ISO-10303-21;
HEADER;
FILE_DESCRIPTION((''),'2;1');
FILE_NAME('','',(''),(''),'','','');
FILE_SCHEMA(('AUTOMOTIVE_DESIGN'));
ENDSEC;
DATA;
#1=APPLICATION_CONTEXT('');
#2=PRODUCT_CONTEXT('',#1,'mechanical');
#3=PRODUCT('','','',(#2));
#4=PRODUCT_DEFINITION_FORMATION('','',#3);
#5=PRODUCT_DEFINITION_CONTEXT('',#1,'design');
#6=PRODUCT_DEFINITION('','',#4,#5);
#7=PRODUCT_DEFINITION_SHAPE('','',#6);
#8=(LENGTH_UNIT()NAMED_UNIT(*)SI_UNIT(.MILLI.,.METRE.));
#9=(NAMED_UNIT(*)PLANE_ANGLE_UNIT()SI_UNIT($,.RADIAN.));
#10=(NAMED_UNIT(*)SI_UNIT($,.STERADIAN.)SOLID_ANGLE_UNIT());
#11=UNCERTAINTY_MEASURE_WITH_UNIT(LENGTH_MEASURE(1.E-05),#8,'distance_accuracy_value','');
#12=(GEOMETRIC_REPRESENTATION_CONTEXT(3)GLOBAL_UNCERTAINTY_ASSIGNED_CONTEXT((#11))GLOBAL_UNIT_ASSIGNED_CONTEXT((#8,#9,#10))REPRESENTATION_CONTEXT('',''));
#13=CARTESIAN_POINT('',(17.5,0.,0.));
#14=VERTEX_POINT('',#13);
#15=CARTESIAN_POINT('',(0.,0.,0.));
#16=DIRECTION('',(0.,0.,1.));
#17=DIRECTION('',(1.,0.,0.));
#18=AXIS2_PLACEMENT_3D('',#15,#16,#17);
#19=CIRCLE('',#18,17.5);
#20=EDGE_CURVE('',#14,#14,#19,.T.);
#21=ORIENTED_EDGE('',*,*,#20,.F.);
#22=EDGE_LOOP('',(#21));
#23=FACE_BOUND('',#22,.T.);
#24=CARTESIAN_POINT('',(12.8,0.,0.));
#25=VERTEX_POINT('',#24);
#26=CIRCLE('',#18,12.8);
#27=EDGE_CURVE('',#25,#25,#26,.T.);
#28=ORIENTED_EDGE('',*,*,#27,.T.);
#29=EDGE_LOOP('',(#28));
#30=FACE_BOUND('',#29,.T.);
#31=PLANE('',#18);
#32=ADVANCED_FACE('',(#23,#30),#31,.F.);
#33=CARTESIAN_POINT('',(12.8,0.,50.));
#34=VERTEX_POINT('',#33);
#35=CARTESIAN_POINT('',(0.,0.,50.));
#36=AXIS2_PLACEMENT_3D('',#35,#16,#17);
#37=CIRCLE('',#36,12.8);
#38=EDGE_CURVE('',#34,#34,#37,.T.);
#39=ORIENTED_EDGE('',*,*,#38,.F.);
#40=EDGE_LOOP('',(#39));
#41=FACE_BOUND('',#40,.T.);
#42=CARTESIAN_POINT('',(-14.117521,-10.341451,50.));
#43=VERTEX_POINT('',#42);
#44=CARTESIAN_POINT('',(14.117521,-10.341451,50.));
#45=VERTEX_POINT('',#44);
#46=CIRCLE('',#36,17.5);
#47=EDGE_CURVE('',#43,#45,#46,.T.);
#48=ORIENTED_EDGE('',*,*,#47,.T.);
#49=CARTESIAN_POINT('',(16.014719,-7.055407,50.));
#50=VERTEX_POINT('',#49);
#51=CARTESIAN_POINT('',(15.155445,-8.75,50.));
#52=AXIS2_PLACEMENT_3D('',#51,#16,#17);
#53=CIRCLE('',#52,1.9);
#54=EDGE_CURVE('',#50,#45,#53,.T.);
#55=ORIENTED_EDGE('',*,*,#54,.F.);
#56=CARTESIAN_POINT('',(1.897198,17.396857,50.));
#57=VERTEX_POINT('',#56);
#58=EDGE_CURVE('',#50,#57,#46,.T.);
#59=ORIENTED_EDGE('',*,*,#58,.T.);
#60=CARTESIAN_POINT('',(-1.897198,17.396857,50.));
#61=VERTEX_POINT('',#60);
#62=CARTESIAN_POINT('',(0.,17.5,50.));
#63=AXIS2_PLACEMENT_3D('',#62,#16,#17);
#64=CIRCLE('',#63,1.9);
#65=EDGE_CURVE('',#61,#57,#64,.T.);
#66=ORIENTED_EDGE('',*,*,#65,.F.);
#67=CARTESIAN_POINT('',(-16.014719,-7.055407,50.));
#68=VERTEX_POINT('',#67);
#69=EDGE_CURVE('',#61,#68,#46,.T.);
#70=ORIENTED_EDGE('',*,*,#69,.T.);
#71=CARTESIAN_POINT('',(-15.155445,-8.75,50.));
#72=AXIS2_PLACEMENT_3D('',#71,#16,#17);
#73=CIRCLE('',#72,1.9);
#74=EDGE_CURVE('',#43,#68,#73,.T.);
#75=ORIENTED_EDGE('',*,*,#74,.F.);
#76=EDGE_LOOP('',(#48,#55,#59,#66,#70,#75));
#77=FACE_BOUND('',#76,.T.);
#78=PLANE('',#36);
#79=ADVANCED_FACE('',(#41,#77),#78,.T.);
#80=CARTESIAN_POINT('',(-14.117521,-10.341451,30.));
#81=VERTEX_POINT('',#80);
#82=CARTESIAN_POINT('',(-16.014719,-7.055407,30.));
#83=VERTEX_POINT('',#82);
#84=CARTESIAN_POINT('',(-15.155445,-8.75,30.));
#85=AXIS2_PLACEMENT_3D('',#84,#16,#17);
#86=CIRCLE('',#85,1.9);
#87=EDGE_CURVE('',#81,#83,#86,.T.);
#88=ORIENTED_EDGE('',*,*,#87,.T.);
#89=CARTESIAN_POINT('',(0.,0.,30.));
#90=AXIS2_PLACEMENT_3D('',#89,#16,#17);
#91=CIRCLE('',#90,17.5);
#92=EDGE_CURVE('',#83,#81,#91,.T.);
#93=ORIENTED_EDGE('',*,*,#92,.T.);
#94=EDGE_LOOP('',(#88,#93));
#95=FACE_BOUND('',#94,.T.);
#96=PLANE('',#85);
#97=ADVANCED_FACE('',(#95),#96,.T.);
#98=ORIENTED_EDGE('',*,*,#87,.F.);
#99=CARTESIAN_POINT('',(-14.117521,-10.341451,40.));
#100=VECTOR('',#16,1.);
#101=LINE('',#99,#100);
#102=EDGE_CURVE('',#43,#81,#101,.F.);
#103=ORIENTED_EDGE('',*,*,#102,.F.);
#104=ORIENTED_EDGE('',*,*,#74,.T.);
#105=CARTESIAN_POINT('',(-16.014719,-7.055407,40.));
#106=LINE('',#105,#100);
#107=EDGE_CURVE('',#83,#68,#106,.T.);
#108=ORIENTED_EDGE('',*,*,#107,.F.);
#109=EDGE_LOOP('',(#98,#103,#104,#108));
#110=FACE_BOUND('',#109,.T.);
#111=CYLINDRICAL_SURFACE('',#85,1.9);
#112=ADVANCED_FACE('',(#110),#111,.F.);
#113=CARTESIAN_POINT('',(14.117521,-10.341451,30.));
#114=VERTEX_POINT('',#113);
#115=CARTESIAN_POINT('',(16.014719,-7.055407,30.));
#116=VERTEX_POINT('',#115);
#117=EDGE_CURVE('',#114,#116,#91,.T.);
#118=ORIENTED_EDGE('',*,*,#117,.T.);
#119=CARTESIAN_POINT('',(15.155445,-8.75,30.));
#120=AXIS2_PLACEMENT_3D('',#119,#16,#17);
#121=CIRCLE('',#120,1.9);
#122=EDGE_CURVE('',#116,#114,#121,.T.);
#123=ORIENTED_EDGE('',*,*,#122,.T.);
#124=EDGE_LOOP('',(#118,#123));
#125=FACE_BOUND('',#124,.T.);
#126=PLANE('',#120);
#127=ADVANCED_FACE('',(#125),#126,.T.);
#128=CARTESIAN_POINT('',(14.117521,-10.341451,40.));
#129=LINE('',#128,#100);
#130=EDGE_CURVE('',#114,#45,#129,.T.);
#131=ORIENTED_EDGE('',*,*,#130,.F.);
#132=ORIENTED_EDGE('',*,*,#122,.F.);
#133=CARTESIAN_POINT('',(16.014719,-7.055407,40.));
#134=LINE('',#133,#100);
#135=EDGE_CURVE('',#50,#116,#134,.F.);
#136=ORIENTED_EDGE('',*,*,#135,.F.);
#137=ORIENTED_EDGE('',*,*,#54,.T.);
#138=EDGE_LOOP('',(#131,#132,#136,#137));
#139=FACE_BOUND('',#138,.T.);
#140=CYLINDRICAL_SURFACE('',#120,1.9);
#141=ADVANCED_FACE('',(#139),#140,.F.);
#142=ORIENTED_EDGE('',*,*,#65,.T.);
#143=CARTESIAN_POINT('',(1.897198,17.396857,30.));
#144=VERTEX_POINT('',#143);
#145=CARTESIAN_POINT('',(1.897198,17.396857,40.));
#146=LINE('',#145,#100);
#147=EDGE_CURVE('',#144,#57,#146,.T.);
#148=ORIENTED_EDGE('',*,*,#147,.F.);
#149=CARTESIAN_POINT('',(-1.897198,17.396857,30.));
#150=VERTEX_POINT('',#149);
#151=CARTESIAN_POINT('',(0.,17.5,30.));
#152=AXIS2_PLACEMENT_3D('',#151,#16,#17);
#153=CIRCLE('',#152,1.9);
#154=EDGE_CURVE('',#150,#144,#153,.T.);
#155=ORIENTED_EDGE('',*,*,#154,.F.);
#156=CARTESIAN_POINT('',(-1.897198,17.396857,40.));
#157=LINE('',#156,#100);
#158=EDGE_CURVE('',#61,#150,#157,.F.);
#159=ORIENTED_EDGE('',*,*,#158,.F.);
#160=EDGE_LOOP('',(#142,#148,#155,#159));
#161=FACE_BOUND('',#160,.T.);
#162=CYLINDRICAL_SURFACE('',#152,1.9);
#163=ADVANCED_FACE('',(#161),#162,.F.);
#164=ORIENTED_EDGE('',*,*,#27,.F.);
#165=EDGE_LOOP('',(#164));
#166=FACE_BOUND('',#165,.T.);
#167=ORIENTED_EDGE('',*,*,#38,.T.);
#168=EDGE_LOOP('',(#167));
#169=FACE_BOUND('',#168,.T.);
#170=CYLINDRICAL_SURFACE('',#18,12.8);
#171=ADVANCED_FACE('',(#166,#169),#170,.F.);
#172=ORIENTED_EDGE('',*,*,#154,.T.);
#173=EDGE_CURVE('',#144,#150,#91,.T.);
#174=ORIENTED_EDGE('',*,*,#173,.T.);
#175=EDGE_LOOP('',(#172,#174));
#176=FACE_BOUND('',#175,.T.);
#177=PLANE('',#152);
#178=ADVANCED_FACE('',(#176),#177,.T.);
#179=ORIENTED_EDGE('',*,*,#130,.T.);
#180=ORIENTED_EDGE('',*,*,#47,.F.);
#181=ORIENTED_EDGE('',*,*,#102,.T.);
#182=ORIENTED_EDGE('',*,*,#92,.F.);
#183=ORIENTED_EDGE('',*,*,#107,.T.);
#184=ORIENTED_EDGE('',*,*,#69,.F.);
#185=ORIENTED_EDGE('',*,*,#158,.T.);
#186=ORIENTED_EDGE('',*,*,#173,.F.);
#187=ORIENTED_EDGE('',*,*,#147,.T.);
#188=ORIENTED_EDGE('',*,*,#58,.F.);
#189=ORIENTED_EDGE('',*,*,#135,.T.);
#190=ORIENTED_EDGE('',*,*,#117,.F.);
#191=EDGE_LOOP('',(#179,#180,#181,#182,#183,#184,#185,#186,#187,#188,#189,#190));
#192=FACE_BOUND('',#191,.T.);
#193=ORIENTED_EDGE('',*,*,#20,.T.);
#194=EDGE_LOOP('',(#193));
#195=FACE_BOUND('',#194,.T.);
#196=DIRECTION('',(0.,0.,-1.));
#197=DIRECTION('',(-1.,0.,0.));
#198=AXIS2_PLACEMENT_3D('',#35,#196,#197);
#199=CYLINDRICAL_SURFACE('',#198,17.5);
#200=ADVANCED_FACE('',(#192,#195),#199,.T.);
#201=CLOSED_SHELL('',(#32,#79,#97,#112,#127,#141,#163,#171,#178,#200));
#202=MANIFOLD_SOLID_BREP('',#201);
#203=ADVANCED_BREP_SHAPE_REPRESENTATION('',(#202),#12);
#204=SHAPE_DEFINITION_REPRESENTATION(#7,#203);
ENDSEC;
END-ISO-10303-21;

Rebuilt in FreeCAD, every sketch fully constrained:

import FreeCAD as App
import Part
import Sketcher
from FreeCAD import Vector
Q = App.Units.Quantity

doc = App.newDocument("Part")
params = doc.addObject("Spreadsheet::Sheet", "Params")
for row, (alias, value) in enumerate([
    ("sketch1_diameter", "35 mm"),
    ("pad1_length", "50 mm"),
    ("sketch2_diameter", "25.6 mm"),
    ("pocket1_length", "50 mm"),
    ("sketch3_diameter", "3.8 mm"),
    ("pocket2_length", "20 mm"),
], start=1):
    params.set(f"A{row}", alias)
    params.set(f"B{row}", "=" + value)
    params.setAlias(f"B{row}", alias)

body = doc.addObject("PartDesign::Body", "Body")

# Sketch on XY plane
sketch1 = body.newObject("Sketcher::SketchObject", "Sketch")
sketch1.AttachmentSupport = (doc.getObject("XY_Plane"), [""])
sketch1.MapMode = "FlatFace"
sketch1.addGeometry(Part.Circle(Vector(0, 0, 0), Vector(0, 0, 1), 18), False)
sketch1.addConstraint(Sketcher.Constraint("Coincident", 0, 3, -1, 1))
sketch1.addConstraint(Sketcher.Constraint("Diameter", 0, Q("35 mm")))
sketch1.setExpression("Constraints[1]", "Params.sketch1_diameter")
pad1 = body.newObject("PartDesign::Pad", "Pad")
pad1.Profile = sketch1
pad1.setExpression("Length", "Params.pad1_length")

# Sketch on XY plane
sketch2 = body.newObject("Sketcher::SketchObject", "Sketch001")
sketch2.AttachmentSupport = (doc.getObject("XY_Plane"), [""])
sketch2.MapMode = "FlatFace"
sketch2.AttachmentOffset = App.Placement(Vector(0, 0, 50), App.Rotation())
sketch2.addGeometry(Part.Circle(Vector(0, 0, 0), Vector(0, 0, 1), 13), False)
sketch2.addConstraint(Sketcher.Constraint("Coincident", 0, 3, -1, 1))
sketch2.addConstraint(Sketcher.Constraint("Diameter", 0, Q("25.6 mm")))
sketch2.setExpression("Constraints[1]", "Params.sketch2_diameter")
pocket1 = body.newObject("PartDesign::Pocket", "Pocket")
pocket1.Profile = sketch2
pocket1.setExpression("Length", "Params.pocket1_length")

# Sketch on XY plane
sketch3 = body.newObject("Sketcher::SketchObject", "Sketch002")
sketch3.AttachmentSupport = (doc.getObject("XY_Plane"), [""])
sketch3.MapMode = "FlatFace"
sketch3.AttachmentOffset = App.Placement(Vector(0, 0, 50), App.Rotation())
sketch3.addGeometry(Part.Circle(Vector(0, 17.5, 0), Vector(0, 0, 1), 1.9), False)
sketch3.addGeometry(Part.Circle(Vector(15.2, -8.8, 0), Vector(0, 0, 1), 1.9), False)
sketch3.addGeometry(Part.Circle(Vector(-15.2, -8.8, 0), Vector(0, 0, 1), 1.9), False)
sketch3.addConstraint(Sketcher.Constraint("Equal", 0, 1))
sketch3.addConstraint(Sketcher.Constraint("Equal", 1, 2))
sketch3.addConstraint(Sketcher.Constraint("Symmetric", 1, 3, 2, 3, -2))
sketch3.addConstraint(Sketcher.Constraint("PointOnObject", 0, 3, -2))
sketch3.addConstraint(Sketcher.Constraint("Diameter", 0, Q("3.8 mm")))
sketch3.addConstraint(Sketcher.Constraint("DistanceY", -1, 1, 0, 3, Q("17.5 mm")))
sketch3.addConstraint(Sketcher.Constraint("DistanceY", 1, 3, -1, 1, Q("8.75 mm")))
sketch3.addConstraint(Sketcher.Constraint("DistanceX", 2, 3, 1, 3, Q("30.310889 mm")))
sketch3.setExpression("Constraints[4]", "Params.sketch3_diameter")
pocket2 = body.newObject("PartDesign::Pocket", "Pocket001")
pocket2.Profile = sketch3
pocket2.setExpression("Length", "Params.pocket2_length")

doc.recompute()
